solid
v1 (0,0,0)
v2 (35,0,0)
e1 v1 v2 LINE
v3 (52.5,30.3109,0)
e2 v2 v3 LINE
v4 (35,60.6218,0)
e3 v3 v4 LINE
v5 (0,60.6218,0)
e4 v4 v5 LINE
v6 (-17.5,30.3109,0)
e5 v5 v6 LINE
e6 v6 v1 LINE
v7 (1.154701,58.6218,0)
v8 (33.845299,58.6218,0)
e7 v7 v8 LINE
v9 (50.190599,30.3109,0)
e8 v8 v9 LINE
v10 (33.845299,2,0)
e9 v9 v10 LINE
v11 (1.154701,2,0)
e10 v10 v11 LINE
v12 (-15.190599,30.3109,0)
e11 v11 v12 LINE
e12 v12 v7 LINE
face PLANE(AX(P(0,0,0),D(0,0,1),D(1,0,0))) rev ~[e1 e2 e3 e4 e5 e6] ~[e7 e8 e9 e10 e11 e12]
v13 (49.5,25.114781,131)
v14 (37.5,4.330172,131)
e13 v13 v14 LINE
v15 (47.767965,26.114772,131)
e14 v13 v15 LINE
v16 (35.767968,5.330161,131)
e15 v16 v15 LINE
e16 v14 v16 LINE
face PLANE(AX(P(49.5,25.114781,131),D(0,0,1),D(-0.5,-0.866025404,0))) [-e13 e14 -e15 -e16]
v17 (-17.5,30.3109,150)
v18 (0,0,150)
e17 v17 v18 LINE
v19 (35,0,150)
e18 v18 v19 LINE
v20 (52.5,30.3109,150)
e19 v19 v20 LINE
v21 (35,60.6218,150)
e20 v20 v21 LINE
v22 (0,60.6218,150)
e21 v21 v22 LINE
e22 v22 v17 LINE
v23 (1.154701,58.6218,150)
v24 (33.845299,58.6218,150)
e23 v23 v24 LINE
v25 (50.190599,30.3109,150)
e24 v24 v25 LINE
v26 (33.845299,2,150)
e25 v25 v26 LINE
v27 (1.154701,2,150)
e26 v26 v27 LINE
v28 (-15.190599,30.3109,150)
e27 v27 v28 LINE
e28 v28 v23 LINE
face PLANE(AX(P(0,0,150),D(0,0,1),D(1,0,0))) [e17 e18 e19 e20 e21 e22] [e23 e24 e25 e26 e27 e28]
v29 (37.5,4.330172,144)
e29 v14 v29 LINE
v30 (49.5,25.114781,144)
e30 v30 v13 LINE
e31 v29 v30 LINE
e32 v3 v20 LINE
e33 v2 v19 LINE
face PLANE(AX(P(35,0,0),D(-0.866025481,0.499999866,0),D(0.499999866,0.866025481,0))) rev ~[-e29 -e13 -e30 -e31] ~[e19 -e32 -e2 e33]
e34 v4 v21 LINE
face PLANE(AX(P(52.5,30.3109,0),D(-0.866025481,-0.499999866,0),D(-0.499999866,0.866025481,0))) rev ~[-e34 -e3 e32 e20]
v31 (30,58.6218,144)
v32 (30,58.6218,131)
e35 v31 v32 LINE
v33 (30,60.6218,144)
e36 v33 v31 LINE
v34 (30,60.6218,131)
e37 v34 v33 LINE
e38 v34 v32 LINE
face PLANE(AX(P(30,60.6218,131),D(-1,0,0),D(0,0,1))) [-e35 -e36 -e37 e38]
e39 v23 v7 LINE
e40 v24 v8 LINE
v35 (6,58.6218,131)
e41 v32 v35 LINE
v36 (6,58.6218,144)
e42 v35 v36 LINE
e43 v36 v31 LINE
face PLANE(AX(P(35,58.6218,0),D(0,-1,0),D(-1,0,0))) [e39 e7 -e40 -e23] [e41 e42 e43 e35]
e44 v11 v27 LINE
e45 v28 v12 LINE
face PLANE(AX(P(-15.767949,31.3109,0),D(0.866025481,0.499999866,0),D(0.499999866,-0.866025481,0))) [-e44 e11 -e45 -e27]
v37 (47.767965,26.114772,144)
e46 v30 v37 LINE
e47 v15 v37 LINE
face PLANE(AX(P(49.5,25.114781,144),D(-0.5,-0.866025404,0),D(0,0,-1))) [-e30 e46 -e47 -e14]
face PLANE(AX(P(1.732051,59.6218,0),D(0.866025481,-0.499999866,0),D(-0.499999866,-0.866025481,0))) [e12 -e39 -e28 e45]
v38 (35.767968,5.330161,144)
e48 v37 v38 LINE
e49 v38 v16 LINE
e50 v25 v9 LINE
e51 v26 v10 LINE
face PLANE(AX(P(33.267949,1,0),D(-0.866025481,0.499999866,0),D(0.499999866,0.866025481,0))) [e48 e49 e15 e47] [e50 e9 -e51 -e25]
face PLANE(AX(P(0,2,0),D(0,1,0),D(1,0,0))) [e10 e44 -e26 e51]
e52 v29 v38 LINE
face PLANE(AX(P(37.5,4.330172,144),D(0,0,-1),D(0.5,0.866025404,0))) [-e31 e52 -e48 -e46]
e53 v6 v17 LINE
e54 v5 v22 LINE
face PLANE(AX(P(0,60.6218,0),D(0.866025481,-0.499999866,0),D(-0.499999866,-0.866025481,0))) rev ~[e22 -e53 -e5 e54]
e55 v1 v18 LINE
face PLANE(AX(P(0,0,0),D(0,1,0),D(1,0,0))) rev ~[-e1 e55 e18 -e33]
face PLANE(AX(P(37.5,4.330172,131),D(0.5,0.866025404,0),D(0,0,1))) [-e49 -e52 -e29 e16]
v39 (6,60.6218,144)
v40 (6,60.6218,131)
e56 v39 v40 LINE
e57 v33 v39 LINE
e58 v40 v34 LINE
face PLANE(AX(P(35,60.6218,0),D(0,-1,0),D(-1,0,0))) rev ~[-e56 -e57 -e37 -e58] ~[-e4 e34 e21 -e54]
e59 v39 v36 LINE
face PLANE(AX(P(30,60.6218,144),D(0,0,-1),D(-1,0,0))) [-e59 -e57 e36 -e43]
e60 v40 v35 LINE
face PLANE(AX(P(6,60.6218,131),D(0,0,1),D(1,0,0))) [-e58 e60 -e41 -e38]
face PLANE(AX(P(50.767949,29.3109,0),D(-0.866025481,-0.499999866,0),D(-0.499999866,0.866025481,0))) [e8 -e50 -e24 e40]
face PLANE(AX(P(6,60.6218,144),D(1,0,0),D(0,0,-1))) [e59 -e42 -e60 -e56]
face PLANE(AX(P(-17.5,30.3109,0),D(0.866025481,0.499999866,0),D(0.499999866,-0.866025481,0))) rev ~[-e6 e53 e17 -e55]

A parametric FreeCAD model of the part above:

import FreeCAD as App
import Part
import Sketcher
Q = App.Units.Quantity


def faces_at(feature, points):
    """Names of the faces that lie closest to the given points."""
    faces = feature.Shape.Faces
    near = lambda p: min(range(len(faces)), key=lambda i: faces[i].distToShape(Part.Vertex(*p))[0])
    return sorted({f"Face{near(p) + 1}" for p in points})

doc = App.newDocument("Part")
params = doc.addObject("Spreadsheet::Sheet", "Params")
for row, (alias, value) in enumerate([
    ("sketch1_width", "35 mm"),
    ("sketch1_length", "35 mm"),
    ("pad1_length", "150 mm"),
    ("thickness_wall", "2 mm"),
    ("sketch2_width", "24 mm"),
    ("sketch2_height", "13 mm"),
    ("pocket1_length", "12 mm"),
    ("sketch3_width", "24 mm"),
    ("sketch3_height", "13 mm"),
    ("pocket2_length", "5.622 mm"),
], start=1):
    params.set(f"A{row}", alias)
    params.set(f"B{row}", "=" + value)
    params.setAlias(f"B{row}", alias)

body = doc.addObject("PartDesign::Body", "Body")

# Sketch on XY plane
sketch1 = body.newObject("Sketcher::SketchObject", "Sketch")
sketch1.AttachmentSupport = (doc.getObject("XY_Plane"), [""])
sketch1.MapMode = "FlatFace"
sketch1.addGeometry([
    Part.LineSegment(App.Vector(-17.5, 30.3109, 0), App.Vector(0, 0, 0)),  # 0
    Part.LineSegment(App.Vector(0, 0, 0), App.Vector(35, 0, 0)),  # 1
    Part.LineSegment(App.Vector(35, 0, 0), App.Vector(52.5, 30.3109, 0)),  # 2
    Part.LineSegment(App.Vector(52.5, 30.3109, 0), App.Vector(35, 60.6218, 0)),  # 3
    Part.LineSegment(App.Vector(35, 60.6218, 0), App.Vector(0, 60.6218, 0)),  # 4
    Part.LineSegment(App.Vector(0, 60.6218, 0), App.Vector(-17.5, 30.3109, 0)),  # 5
], False)
sketch1.addConstraint([
    Sketcher.Constraint("Coincident", 0, 2, 1, 1),
    Sketcher.Constraint("Coincident", 1, 2, 2, 1),
    Sketcher.Constraint("Coincident", 2, 2, 3, 1),
    Sketcher.Constraint("Coincident", 3, 2, 4, 1),
    Sketcher.Constraint("Coincident", 4, 2, 5, 1),
    Sketcher.Constraint("Coincident", 5, 2, 0, 1),
    Sketcher.Constraint("Horizontal", 1),
    Sketcher.Constraint("Horizontal", 4),
    Sketcher.Constraint("Coincident", 0, 2, -1, 1),
    Sketcher.Constraint("PointOnObject", 4, 2, -2),
    Sketcher.Constraint("Parallel", 0, 3),
    Sketcher.Constraint("Parallel", 2, 5),
    Sketcher.Constraint("Horizontal", 2, 2, 5, 2),
    Sketcher.Constraint("Vertical", 1, 2, 3, 2),
    Sketcher.Constraint("DistanceX", 1, 1, 1, 2, 35.0),
    Sketcher.Constraint("Angle", 0, Q("-60 deg")),
    Sketcher.Constraint("Distance", 0, 35.0),
])
sketch1.setExpression("Constraints[14]", "Params.sketch1_width")
sketch1.setExpression("Constraints[16]", "Params.sketch1_length")
pad1 = body.newObject("PartDesign::Pad", "Pad")
pad1.Profile = sketch1
pad1.setExpression("Length", "Params.pad1_length")
doc.recompute()

thickness = body.newObject("PartDesign::Thickness", "Thickness")
thickness.Base = (pad1, faces_at(pad1, [(11.667, 20.207, 0), (11.667, 20.207, 150)]))
thickness.setExpression("Value", "Params.thickness_wall")
thickness.Reversed = True
thickness.Join = "Intersection"

# Sketch on XZ plane
sketch2 = body.newObject("Sketcher::SketchObject", "Sketch001")
sketch2.AttachmentSupport = (doc.getObject("XZ_Plane"), [""])
sketch2.MapMode = "FlatFace"
sketch2.AttachmentOffset = App.Placement(App.Vector(0, 0, -60.6218), App.Rotation())
sketch2.addGeometry([
    Part.LineSegment(App.Vector(6, 144, 0), App.Vector(30, 144, 0)),
    Part.LineSegment(App.Vector(30, 144, 0), App.Vector(30, 131, 0)),
    Part.LineSegment(App.Vector(30, 131, 0), App.Vector(6, 131, 0)),
    Part.LineSegment(App.Vector(6, 131, 0), App.Vector(6, 144, 0)),
], False)
sketch2.addConstraint([
    Sketcher.Constraint("Coincident", 0, 2, 1, 1),
    Sketcher.Constraint("Coincident", 1, 2, 2, 1),
    Sketcher.Constraint("Coincident", 2, 2, 3, 1),
    Sketcher.Constraint("Coincident", 3, 2, 0, 1),
    Sketcher.Constraint("Horizontal", 0),
    Sketcher.Constraint("Vertical", 1),
    Sketcher.Constraint("Horizontal", 2),
    Sketcher.Constraint("Vertical", 3),
    Sketcher.Constraint("DistanceX", 0, 1, 0, 2, 24.0),
    Sketcher.Constraint("DistanceY", 1, 2, 1, 1, 13.0),
    Sketcher.Constraint("DistanceX", -1, 1, 0, 2, 30.0),
    Sketcher.Constraint("DistanceY", -1, 1, 0, 2, 144.0),
])
sketch2.setExpression("Constraints[8]", "Params.sketch2_width")
sketch2.setExpression("Constraints[9]", "Params.sketch2_height")
pocket1 = body.newObject("PartDesign::Pocket", "Pocket")
pocket1.Profile = sketch2
pocket1.setExpression("Length", "Params.pocket1_length")
pocket1.Reversed = True

# Sketch on an angled plane
sketch3 = body.newObject("Sketcher::SketchObject", "Sketch002")
sketch3.Placement = App.Placement(App.Vector(26.25, -15.1554, 0), App.Rotation(App.Vector(0.5, 0.866025404, 0), App.Vector(0, 0, 1), App.Vector(0.866025404, -0.5, 0), "ZXY"))
sketch3.addGeometry([
    Part.LineSegment(App.Vector(46.5, 144, 0), App.Vector(22.5, 144, 0)),
    Part.LineSegment(App.Vector(22.5, 144, 0), App.Vector(22.5, 131, 0)),
    Part.LineSegment(App.Vector(22.5, 131, 0), App.Vector(46.5, 131, 0)),
    Part.LineSegment(App.Vector(46.5, 131, 0), App.Vector(46.5, 144, 0)),
], False)
sketch3.addConstraint([
    Sketcher.Constraint("Coincident", 0, 2, 1, 1),
    Sketcher.Constraint("Coincident", 1, 2, 2, 1),
    Sketcher.Constraint("Coincident", 2, 2, 3, 1),
    Sketcher.Constraint("Coincident", 3, 2, 0, 1),
    Sketcher.Constraint("Horizontal", 0),
    Sketcher.Constraint("Vertical", 1),
    Sketcher.Constraint("Horizontal", 2),
    Sketcher.Constraint("Vertical", 3),
    Sketcher.Constraint("DistanceX", 0, 2, 0, 1, 24.0),
    Sketcher.Constraint("DistanceY", 1, 2, 1, 1, 13.0),
    Sketcher.Constraint("DistanceY", -1, 1, 0, 2, 144.0),
    Sketcher.Constraint("DistanceX", -1, 1, 0, 2, 22.5),
])
sketch3.setExpression("Constraints[8]", "Params.sketch3_width")
sketch3.setExpression("Constraints[9]", "Params.sketch3_height")
pocket2 = body.newObject("PartDesign::Pocket", "Pocket001")
pocket2.Profile = sketch3
pocket2.setExpression("Length", "Params.pocket2_length")

doc.recompute()
